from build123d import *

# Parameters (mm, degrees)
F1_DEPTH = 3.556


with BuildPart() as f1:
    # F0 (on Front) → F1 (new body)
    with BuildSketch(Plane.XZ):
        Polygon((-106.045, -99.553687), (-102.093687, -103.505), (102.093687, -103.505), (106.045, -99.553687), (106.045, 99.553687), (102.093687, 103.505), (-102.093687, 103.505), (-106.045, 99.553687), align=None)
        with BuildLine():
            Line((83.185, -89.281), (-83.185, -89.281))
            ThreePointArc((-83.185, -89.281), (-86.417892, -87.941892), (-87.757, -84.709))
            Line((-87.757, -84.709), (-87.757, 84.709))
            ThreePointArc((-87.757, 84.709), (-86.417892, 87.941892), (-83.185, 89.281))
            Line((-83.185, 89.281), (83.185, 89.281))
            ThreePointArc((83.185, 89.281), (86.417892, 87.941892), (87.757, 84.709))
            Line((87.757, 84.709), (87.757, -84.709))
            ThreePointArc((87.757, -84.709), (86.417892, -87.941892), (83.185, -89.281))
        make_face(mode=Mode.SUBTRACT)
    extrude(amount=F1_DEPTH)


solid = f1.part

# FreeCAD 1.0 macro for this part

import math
import FreeCAD as App
import Part
import Sketcher

V = App.Vector
Q = App.Units.Quantity

doc = App.newDocument("Part")
params = doc.addObject("Spreadsheet::Sheet", "Params")
for row, (alias, value) in enumerate([
    ("sketch1_radius", "0.18 in"),
    ("sketch1_width", "6.55 in"),
    ("sketch1_height", "6.67 in"),
    ("sketch1_length", "0.22 in"),
    ("pad1_length", "0.14 in"),
], start=1):
    params.set(f"A{row}", alias)
    params.set(f"B{row}", "=" + value)
    params.setAlias(f"B{row}", alias)

body = doc.addObject("PartDesign::Body", "Body")

sketch1 = body.newObject("Sketcher::SketchObject", "Sketch")
sketch1.AttachmentSupport = (doc.getObject("XZ_Plane"), [""])
sketch1.MapMode = "FlatFace"
sketch1.addGeometry([
    Part.LineSegment(V(-106.045, -99.553687, 0), V(-102.093687, -103.505, 0)),
    Part.LineSegment(V(-102.093687, -103.505, 0), V(102.093687, -103.505, 0)),
    Part.LineSegment(V(102.093687, -103.505, 0), V(106.045, -99.553687, 0)),
    Part.LineSegment(V(106.045, -99.553687, 0), V(106.045, 99.553687, 0)),
    Part.LineSegment(V(106.045, 99.553687, 0), V(102.093687, 103.505, 0)),
    Part.LineSegment(V(102.093687, 103.505, 0), V(-102.093687, 103.505, 0)),
    Part.LineSegment(V(-102.093687, 103.505, 0), V(-106.045, 99.553687, 0)),
    Part.LineSegment(V(-106.045, 99.553687, 0), V(-106.045, -99.553687, 0)),
    Part.ArcOfCircle(Part.Circle(V(83.184999, -84.708999, 0), V(0, 0, 1), 4.572001), math.radians(-89.999991), math.radians(-0.000009)),
    Part.LineSegment(V(83.185, -89.281, 0), V(-83.185, -89.281, 0)),
    Part.ArcOfCircle(Part.Circle(V(-83.184999, -84.708999, 0), V(0, 0, 1), 4.572001), math.radians(-179.999991), math.radians(-90.000009)),
    Part.LineSegment(V(-87.757, -84.709, 0), V(-87.757, 84.709, 0)),
    Part.ArcOfCircle(Part.Circle(V(-83.184999, 84.708999, 0), V(0, 0, 1), 4.572001), math.radians(90.000009), math.radians(179.999991)),
    Part.LineSegment(V(-83.185, 89.281, 0), V(83.185, 89.281, 0)),
    Part.ArcOfCircle(Part.Circle(V(83.184999, 84.708999, 0), V(0, 0, 1), 4.572001), math.radians(0.000009), math.radians(89.999991)),
    Part.LineSegment(V(87.757, 84.709, 0), V(87.757, -84.709, 0)),
], False)
sketch1.addConstraint([
    Sketcher.Constraint("Coincident", 0, 2, 1, 1),
    Sketcher.Constraint("Coincident", 1, 2, 2, 1),
    Sketcher.Constraint("Coincident", 2, 2, 3, 1),
    Sketcher.Constraint("Coincident", 3, 2, 4, 1),
    Sketcher.Constraint("Coincident", 4, 2, 5, 1),
    Sketcher.Constraint("Coincident", 5, 2, 6, 1),
    Sketcher.Constraint("Coincident", 6, 2, 7, 1),
    Sketcher.Constraint("Coincident", 7, 2, 0, 1),
    Sketcher.Constraint("Tangent", 8, 1, 9, 1),
    Sketcher.Constraint("Tangent", 9, 2, 10, 2),
    Sketcher.Constraint("Tangent", 10, 1, 11, 1),
    Sketcher.Constraint("Tangent", 11, 2, 12, 2),
    Sketcher.Constraint("Tangent", 12, 1, 13, 1),
    Sketcher.Constraint("Tangent", 13, 2, 14, 2),
    Sketcher.Constraint("Tangent", 14, 1, 15, 1),
    Sketcher.Constraint("Tangent", 15, 2, 8, 2),
    Sketcher.Constraint("Horizontal", 1),
    Sketcher.Constraint("Vertical", 3),
    Sketcher.Constraint("Horizontal", 5),
    Sketcher.Constraint("Vertical", 7),
    Sketcher.Constraint("Horizontal", 9),
    Sketcher.Constraint("Vertical", 11),
    Sketcher.Constraint("Horizontal", 13),
    Sketcher.Constraint("Vertical", 15),
    Sketcher.Constraint("Equal", 8, 10),
    Sketcher.Constraint("Equal", 10, 12),
    Sketcher.Constraint("Equal", 12, 14),
    Sketcher.Constraint("Symmetric", 8, 3, 12, 3, -1, 1),
    Sketcher.Constraint("Symmetric", 0, 2, 4, 2, -1, 1),
    Sketcher.Constraint("Symmetric", 2, 2, 6, 2, -1, 1),
    Sketcher.Constraint("Perpendicular", 0, 2),
    Sketcher.Constraint("Perpendicular", 2, 4),
    Sketcher.Constraint("Perpendicular", 4, 6),
    Sketcher.Constraint("Horizontal", 3, 2, 6, 2),
    Sketcher.Constraint("Vertical", 1, 2, 4, 2),
    Sketcher.Constraint("Radius", 8, Q("0.18 in")),
    Sketcher.Constraint("DistanceX", 9, 2, 9, 1, Q("6.55 in")),
    Sketcher.Constraint("DistanceY", 11, 1, 11, 2, Q("6.67 in")),
    Sketcher.Constraint("DistanceX", 8, 3, 2, 2, Q("0.9 in")),
    Sketcher.Constraint("Distance", 0, Q("0.22 in")),
    Sketcher.Constraint("DistanceY", 0, 2, 10, 3, Q("0.74 in")),
])
sketch1.setExpression("Constraints[35]", "Params.sketch1_radius")
sketch1.setExpression("Constraints[36]", "Params.sketch1_width")
sketch1.setExpression("Constraints[37]", "Params.sketch1_height")
sketch1.setExpression("Constraints[39]", "Params.sketch1_length")
pad1 = body.newObject("PartDesign::Pad", "Pad")
pad1.Profile = sketch1
pad1.setExpression("Length", "Params.pad1_length")

doc.recompute()
